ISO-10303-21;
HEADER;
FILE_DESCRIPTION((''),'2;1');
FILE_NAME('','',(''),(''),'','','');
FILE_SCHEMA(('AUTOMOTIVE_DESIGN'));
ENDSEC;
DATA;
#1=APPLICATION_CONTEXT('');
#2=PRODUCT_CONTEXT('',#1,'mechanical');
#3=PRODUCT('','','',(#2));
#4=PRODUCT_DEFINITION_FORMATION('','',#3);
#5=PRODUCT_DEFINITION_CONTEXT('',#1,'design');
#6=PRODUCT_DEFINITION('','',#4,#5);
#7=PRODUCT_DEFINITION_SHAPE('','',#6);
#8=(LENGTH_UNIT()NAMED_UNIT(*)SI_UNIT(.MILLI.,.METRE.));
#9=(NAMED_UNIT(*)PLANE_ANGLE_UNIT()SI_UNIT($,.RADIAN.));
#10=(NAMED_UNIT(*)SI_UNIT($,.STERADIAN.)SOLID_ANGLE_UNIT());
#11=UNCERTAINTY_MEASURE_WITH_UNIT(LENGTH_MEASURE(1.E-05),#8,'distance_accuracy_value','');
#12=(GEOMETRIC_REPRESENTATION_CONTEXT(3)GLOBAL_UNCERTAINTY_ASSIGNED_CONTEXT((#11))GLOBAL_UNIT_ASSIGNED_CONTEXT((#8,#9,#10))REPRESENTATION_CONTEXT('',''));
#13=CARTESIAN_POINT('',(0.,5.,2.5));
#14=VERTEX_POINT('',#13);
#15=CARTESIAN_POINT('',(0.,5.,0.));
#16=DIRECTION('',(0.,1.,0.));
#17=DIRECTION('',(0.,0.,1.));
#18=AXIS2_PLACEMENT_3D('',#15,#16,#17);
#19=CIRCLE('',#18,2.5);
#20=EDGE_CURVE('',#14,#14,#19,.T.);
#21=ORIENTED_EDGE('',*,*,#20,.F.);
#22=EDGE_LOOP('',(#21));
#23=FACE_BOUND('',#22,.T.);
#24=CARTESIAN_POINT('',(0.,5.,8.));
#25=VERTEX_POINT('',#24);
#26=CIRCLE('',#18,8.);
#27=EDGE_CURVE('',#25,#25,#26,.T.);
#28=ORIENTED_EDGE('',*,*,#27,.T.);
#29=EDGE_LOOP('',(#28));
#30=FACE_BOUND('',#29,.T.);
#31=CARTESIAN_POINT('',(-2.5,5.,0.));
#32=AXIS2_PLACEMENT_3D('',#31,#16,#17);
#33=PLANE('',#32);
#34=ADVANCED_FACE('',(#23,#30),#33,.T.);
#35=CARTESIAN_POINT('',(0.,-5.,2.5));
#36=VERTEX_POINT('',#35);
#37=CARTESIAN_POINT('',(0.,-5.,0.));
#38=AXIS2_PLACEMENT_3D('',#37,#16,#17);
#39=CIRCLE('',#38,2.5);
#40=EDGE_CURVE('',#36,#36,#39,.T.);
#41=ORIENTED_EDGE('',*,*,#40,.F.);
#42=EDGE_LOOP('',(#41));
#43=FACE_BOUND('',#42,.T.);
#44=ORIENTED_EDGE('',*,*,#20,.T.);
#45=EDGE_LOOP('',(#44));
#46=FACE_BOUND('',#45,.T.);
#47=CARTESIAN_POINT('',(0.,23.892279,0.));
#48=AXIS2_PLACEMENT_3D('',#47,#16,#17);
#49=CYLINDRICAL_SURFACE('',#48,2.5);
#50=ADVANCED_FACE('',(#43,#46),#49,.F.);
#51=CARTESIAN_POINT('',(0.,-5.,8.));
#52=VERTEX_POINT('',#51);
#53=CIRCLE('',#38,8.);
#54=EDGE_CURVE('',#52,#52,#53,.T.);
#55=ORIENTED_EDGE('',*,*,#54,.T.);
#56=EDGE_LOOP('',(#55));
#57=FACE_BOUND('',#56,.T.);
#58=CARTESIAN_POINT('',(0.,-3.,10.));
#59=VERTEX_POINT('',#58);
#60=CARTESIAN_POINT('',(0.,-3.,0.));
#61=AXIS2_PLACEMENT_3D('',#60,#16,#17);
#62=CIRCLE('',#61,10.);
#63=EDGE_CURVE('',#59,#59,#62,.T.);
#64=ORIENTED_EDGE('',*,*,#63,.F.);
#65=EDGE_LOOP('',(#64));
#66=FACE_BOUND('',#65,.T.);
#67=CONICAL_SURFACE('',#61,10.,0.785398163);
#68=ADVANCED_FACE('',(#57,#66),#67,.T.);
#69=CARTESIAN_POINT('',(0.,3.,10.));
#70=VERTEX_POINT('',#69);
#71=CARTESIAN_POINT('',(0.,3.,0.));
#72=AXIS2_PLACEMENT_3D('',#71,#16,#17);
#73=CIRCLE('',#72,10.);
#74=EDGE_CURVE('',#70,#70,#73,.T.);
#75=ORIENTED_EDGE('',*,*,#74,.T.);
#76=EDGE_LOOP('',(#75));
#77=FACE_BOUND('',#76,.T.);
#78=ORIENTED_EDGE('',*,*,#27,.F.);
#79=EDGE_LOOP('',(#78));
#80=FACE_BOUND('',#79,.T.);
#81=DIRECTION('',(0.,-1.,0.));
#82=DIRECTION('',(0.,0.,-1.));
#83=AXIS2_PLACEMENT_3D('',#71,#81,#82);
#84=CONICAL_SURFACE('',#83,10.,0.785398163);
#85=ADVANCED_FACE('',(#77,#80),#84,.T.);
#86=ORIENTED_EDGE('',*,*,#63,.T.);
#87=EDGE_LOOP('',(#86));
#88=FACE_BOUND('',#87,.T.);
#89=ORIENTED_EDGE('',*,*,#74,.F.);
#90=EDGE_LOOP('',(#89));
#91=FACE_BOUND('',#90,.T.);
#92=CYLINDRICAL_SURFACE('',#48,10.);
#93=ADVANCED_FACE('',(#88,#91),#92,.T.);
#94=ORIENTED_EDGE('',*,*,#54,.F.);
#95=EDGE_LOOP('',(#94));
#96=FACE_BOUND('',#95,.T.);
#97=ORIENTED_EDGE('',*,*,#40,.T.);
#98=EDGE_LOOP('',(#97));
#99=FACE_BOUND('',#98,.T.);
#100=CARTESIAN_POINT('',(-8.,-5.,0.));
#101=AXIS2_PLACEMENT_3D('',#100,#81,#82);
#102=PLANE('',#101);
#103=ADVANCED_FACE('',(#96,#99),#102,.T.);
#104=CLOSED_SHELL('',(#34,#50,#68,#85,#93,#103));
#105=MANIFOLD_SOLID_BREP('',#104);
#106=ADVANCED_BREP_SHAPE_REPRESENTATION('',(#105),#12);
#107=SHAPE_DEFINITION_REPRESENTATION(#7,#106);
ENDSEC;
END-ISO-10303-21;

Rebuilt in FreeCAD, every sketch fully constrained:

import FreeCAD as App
import Part
import Sketcher
Q = App.Units.Quantity


def add_polygon(sketch, points):
    """Adds a closed chain of lines whose ends are joined by coincident constraints."""
    first, n = sketch.GeometryCount, len(points)
    for a, b in zip(points, points[1:] + points[:1]):
        sketch.addGeometry(Part.LineSegment(App.Vector(*a, 0), App.Vector(*b, 0)), False)
    for i in range(n):
        sketch.addConstraint(Sketcher.Constraint("Coincident", first + i, 2, first + (i + 1) % n, 1))

doc = App.newDocument("Part")
body = doc.addObject("PartDesign::Body", "Body")

# Sketch on XY plane
sketch1 = doc.addObject("Sketcher::SketchObject", "Sketch")
body.addObject(sketch1)
sketch1.AttachmentSupport = (doc.XY_Plane, [""])
sketch1.MapMode = "FlatFace"
add_polygon(sketch1, [(-8, -5), (-2.5, -5), (-2.5, 5), (-8, 5), (-10, 3), (-10, -3)])  # lines 0-5
sketch1.addConstraint([
    Sketcher.Constraint("Horizontal", 0),
    Sketcher.Constraint("Vertical", 1),
    Sketcher.Constraint("Horizontal", 2),
    Sketcher.Constraint("Vertical", 4),
    Sketcher.Constraint("Symmetric", 2, 2, 5, 2, -1),
    Sketcher.Constraint("Perpendicular", 3, 5),
    Sketcher.Constraint("Equal", 3, 5),
    Sketcher.Constraint("DistanceY", 1, 1, 1, 2, Q("10 mm")),
    Sketcher.Constraint("DistanceY", 4, 2, 4, 1, Q("6 mm")),
    Sketcher.Constraint("DistanceX", 0, 1, 0, 2, Q("5.5 mm")),
    Sketcher.Constraint("DistanceX", 2, 2, -1, 1, Q("8 mm")),
])
revolution = doc.addObject("PartDesign::Revolution", "Revolution")
body.addObject(revolution)
revolution.Profile = sketch1
revolution.ReferenceAxis = (sketch1, ["V_Axis"])
revolution.Angle = 360

doc.recompute()
